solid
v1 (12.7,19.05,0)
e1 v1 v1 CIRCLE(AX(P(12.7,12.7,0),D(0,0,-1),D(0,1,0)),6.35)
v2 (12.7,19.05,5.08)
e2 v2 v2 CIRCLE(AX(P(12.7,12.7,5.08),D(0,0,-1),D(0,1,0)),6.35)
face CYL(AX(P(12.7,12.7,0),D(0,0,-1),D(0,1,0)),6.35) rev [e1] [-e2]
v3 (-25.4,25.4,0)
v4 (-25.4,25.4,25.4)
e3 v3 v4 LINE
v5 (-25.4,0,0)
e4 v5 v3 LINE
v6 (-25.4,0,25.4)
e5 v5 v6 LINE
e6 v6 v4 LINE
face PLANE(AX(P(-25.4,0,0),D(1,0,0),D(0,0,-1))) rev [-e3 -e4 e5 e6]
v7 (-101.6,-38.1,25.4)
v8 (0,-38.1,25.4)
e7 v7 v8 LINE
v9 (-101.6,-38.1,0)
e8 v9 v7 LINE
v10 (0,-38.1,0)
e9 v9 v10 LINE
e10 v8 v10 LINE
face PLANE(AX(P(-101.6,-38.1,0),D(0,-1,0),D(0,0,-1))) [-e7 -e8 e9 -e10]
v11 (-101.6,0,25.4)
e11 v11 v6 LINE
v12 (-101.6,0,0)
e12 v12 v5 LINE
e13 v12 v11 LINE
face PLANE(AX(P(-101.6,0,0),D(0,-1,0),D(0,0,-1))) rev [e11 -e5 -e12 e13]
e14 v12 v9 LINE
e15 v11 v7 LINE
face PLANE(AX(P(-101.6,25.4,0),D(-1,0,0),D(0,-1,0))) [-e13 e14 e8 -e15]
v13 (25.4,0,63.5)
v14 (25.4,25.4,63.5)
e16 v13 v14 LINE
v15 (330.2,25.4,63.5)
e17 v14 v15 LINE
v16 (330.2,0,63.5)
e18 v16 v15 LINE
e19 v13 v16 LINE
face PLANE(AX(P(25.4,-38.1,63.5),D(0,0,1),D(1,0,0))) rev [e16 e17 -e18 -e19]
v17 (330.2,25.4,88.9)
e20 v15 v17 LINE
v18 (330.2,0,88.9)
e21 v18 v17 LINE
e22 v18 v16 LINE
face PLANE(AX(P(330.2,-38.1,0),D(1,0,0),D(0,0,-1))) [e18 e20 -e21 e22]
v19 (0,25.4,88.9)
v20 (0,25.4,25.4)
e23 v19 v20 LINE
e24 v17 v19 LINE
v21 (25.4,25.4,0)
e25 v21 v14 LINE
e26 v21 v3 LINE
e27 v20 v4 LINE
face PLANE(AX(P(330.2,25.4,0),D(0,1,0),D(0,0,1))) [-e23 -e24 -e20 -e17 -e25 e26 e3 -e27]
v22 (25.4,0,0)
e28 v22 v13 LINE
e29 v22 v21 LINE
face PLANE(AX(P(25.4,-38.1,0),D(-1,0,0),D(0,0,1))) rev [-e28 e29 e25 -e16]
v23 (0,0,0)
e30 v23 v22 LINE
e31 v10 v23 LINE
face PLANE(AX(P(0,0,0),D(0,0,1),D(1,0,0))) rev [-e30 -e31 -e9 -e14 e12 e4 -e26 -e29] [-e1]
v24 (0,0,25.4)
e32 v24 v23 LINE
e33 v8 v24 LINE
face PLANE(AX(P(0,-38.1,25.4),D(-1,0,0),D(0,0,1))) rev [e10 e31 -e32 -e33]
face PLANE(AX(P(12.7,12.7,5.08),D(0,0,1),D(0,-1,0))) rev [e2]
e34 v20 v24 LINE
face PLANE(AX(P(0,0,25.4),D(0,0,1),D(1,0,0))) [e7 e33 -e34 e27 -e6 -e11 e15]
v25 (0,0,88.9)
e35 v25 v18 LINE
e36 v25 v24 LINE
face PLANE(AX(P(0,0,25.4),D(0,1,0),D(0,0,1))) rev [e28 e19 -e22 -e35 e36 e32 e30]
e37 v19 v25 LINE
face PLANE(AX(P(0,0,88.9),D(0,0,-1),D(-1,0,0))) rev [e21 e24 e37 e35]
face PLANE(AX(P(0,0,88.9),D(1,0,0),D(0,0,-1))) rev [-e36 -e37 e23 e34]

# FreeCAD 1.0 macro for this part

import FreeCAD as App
import Part
import Sketcher
Q = App.Units.Quantity


def add_polygon(sketch, points):
    """Adds a closed chain of lines whose ends are joined by coincident constraints."""
    first, n = sketch.GeometryCount, len(points)
    for a, b in zip(points, points[1:] + points[:1]):
        sketch.addGeometry(Part.LineSegment(App.Vector(*a, 0), App.Vector(*b, 0)), False)
    for i in range(n):
        sketch.addConstraint(Sketcher.Constraint("Coincident", first + i, 2, first + (i + 1) % n, 1))

doc = App.newDocument("Part")
params = doc.addObject("Spreadsheet::Sheet", "Params")
for row, (alias, value) in enumerate([
    ("sketch1_width", "17 in"),
    ("sketch1_height", "2.5 in"),
    ("pad1_length", "1 in"),
    ("sketch2_width", "13 in"),
    ("sketch2_height", "1.5 in"),
    ("sketch3_width", "13 in"),
    ("sketch3_height", "1 in"),
    ("pad2_length", "2.5 in"),
    ("sketch4_width", "3 in"),
    ("sketch4_height", "1 in"),
    ("sketch5_width", "12 in"),
    ("sketch5_height", "2.5 in"),
    ("sketch6_diameter", "0.5 in"),
    ("hole_diameter", "0.5 in"),
    ("hole_depth", "0.2 in"),
], start=1):
    params.set(f"A{row}", alias)
    params.set(f"B{row}", "=" + value)
    params.setAlias(f"B{row}", alias)

body = doc.addObject("PartDesign::Body", "Body")

sketch1 = body.newObject("Sketcher::SketchObject", "Sketch")
sketch1.AttachmentSupport = (doc.getObject("XY_Plane"), [""])
sketch1.MapMode = "FlatFace"
sketch1.AttachmentOffset = App.Placement(App.Vector(0, 0, 1 * 25.4), App.Rotation())
add_polygon(sketch1, [(-102, 25), (-102, -38), (330, -38), (330, 25)])
sketch1.addConstraint([
    Sketcher.Constraint("Vertical", 0),
    Sketcher.Constraint("Horizontal", 1),
    Sketcher.Constraint("Vertical", 2),
    Sketcher.Constraint("Horizontal", 3),
    Sketcher.Constraint("DistanceX", 1, 1, 1, 2, Q("17 in")),
    Sketcher.Constraint("DistanceY", 0, 2, 0, 1, Q("2.5 in")),
    Sketcher.Constraint("DistanceX", 0, 2, -1, 1, Q("4 in")),
    Sketcher.Constraint("DistanceY", -1, 1, 2, 2, Q("1 in")),
])
sketch1.setExpression("Constraints[8]", "Params.sketch1_width")
sketch1.setExpression("Constraints[9]", "Params.sketch1_height")
pad1 = body.newObject("PartDesign::Pad", "Pad")
pad1.Profile = sketch1
pad1.setExpression("Length", "Params.pad1_length")
pad1.Reversed = True

sketch2 = body.newObject("Sketcher::SketchObject", "Sketch001")
sketch2.AttachmentSupport = (doc.getObject("XY_Plane"), [""])
sketch2.MapMode = "FlatFace"
add_polygon(sketch2, [(330, 0), (330, -38), (0, -38), (0, 0)])
sketch2.addConstraint([
    Sketcher.Constraint("Vertical", 0),
    Sketcher.Constraint("Horizontal", 1),
    Sketcher.Constraint("Vertical", 2),
    Sketcher.Constraint("Horizontal", 3),
    Sketcher.Constraint("Coincident", 2, 2, -1, 1),
    Sketcher.Constraint("DistanceX", 1, 2, 1, 1, Q("13 in")),
    Sketcher.Constraint("DistanceY", 0, 2, 0, 1, Q("1.5 in")),
])
sketch2.setExpression("Constraints[9]", "Params.sketch2_width")
sketch2.setExpression("Constraints[10]", "Params.sketch2_height")
pocket1 = body.newObject("PartDesign::Pocket", "Pocket")
pocket1.Profile = sketch2
pocket1.Type = "ThroughAll"
pocket1.Reversed = True

sketch3 = body.newObject("Sketcher::SketchObject", "Sketch002")
sketch3.AttachmentSupport = (doc.getObject("XY_Plane"), [""])
sketch3.MapMode = "FlatFace"
sketch3.AttachmentOffset = App.Placement(App.Vector(0, 0, 1 * 25.4), App.Rotation())
add_polygon(sketch3, [(0, 25), (0, 0), (330, 0), (330, 25)])
sketch3.addConstraint([
    Sketcher.Constraint("Vertical", 0),
    Sketcher.Constraint("Horizontal", 1),
    Sketcher.Constraint("Vertical", 2),
    Sketcher.Constraint("Horizontal", 3),
    Sketcher.Constraint("Coincident", 0, 2, -1, 1),
    Sketcher.Constraint("DistanceX", 1, 1, 1, 2, Q("13 in")),
    Sketcher.Constraint("DistanceY", 0, 2, 0, 1, Q("1 in")),
])
sketch3.setExpression("Constraints[9]", "Params.sketch3_width")
sketch3.setExpression("Constraints[10]", "Params.sketch3_height")
pad2 = body.newObject("PartDesign::Pad", "Pad001")
pad2.Profile = sketch3
pad2.setExpression("Length", "Params.pad2_length")

sketch4 = body.newObject("Sketcher::SketchObject", "Sketch003")
sketch4.AttachmentSupport = (doc.getObject("XY_Plane"), [""])
sketch4.MapMode = "FlatFace"
sketch4.AttachmentOffset = App.Placement(App.Vector(0, 0, 1 * 25.4), App.Rotation())
add_polygon(sketch4, [(-102, 25), (-102, 0), (-25, 0), (-25, 25)])
sketch4.addConstraint([
    Sketcher.Constraint("Vertical", 0),
    Sketcher.Constraint("Horizontal", 1),
    Sketcher.Constraint("Vertical", 2),
    Sketcher.Constraint("Horizontal", 3),
    Sketcher.Constraint("PointOnObject", 0, 2, -1),
    Sketcher.Constraint("DistanceX", 1, 1, 1, 2, Q("3 in")),
    Sketcher.Constraint("DistanceY", 0, 2, 0, 1, Q("1 in")),
    Sketcher.Constraint("DistanceX", 0, 2, -1, 1, Q("4 in")),
])
sketch4.setExpression("Constraints[9]", "Params.sketch4_width")
sketch4.setExpression("Constraints[10]", "Params.sketch4_height")
pocket2 = body.newObject("PartDesign::Pocket", "Pocket001")
pocket2.Profile = sketch4
pocket2.Type = "ThroughAll"

sketch5 = body.newObject("Sketcher::SketchObject", "Sketch004")
sketch5.AttachmentSupport = (doc.getObject("XZ_Plane"), [""])
sketch5.MapMode = "FlatFace"
sketch5.AttachmentOffset = App.Placement(App.Vector(0, 0, -1 * 25.4), App.Rotation())
add_polygon(sketch5, [(330, 64), (330, 0), (25, 0), (25, 64)])
sketch5.addConstraint([
    Sketcher.Constraint("Vertical", 0),
    Sketcher.Constraint("Horizontal", 1),
    Sketcher.Constraint("Vertical", 2),
    Sketcher.Constraint("Horizontal", 3),
    Sketcher.Constraint("PointOnObject", 0, 2, -1),
    Sketcher.Constraint("DistanceX", 1, 2, 1, 1, Q("12 in")),
    Sketcher.Constraint("DistanceY", 0, 2, 0, 1, Q("2.5 in")),
    Sketcher.Constraint("DistanceX", -1, 1, 0, 2, Q("13 in")),
])
sketch5.setExpression("Constraints[9]", "Params.sketch5_width")
sketch5.setExpression("Constraints[10]", "Params.sketch5_height")
pocket3 = body.newObject("PartDesign::Pocket", "Pocket002")
pocket3.Profile = sketch5
pocket3.Type = "ThroughAll"
pocket3.Reversed = True

sketch6 = body.newObject("Sketcher::SketchObject", "Sketch005")
sketch6.AttachmentSupport = (doc.getObject("XY_Plane"), [""])
sketch6.MapMode = "FlatFace"
sketch6.addGeometry(Part.Circle(App.Vector(13, 13, 0), App.Vector(0, 0, 1), 6), False)
sketch6.addConstraint([
    Sketcher.Constraint("Diameter", 0, Q("0.5 in")),
    Sketcher.Constraint("DistanceX", -1, 1, 0, 3, Q("0.5 in")),
    Sketcher.Constraint("DistanceY", -1, 1, 0, 3, Q("0.5 in")),
])
sketch6.setExpression("Constraints[0]", "Params.sketch6_diameter")
doc.recompute()
hole = body.newObject("PartDesign::Hole", "Hole")
hole.Profile = sketch6
hole.ThreadType = "None"
hole.setExpression("Diameter", "Params.hole_diameter")
hole.DepthType = "Dimension"
hole.setExpression("Depth", "Params.hole_depth")
hole.DrillPoint = "Flat"
hole.Reversed = True

doc.recompute()
